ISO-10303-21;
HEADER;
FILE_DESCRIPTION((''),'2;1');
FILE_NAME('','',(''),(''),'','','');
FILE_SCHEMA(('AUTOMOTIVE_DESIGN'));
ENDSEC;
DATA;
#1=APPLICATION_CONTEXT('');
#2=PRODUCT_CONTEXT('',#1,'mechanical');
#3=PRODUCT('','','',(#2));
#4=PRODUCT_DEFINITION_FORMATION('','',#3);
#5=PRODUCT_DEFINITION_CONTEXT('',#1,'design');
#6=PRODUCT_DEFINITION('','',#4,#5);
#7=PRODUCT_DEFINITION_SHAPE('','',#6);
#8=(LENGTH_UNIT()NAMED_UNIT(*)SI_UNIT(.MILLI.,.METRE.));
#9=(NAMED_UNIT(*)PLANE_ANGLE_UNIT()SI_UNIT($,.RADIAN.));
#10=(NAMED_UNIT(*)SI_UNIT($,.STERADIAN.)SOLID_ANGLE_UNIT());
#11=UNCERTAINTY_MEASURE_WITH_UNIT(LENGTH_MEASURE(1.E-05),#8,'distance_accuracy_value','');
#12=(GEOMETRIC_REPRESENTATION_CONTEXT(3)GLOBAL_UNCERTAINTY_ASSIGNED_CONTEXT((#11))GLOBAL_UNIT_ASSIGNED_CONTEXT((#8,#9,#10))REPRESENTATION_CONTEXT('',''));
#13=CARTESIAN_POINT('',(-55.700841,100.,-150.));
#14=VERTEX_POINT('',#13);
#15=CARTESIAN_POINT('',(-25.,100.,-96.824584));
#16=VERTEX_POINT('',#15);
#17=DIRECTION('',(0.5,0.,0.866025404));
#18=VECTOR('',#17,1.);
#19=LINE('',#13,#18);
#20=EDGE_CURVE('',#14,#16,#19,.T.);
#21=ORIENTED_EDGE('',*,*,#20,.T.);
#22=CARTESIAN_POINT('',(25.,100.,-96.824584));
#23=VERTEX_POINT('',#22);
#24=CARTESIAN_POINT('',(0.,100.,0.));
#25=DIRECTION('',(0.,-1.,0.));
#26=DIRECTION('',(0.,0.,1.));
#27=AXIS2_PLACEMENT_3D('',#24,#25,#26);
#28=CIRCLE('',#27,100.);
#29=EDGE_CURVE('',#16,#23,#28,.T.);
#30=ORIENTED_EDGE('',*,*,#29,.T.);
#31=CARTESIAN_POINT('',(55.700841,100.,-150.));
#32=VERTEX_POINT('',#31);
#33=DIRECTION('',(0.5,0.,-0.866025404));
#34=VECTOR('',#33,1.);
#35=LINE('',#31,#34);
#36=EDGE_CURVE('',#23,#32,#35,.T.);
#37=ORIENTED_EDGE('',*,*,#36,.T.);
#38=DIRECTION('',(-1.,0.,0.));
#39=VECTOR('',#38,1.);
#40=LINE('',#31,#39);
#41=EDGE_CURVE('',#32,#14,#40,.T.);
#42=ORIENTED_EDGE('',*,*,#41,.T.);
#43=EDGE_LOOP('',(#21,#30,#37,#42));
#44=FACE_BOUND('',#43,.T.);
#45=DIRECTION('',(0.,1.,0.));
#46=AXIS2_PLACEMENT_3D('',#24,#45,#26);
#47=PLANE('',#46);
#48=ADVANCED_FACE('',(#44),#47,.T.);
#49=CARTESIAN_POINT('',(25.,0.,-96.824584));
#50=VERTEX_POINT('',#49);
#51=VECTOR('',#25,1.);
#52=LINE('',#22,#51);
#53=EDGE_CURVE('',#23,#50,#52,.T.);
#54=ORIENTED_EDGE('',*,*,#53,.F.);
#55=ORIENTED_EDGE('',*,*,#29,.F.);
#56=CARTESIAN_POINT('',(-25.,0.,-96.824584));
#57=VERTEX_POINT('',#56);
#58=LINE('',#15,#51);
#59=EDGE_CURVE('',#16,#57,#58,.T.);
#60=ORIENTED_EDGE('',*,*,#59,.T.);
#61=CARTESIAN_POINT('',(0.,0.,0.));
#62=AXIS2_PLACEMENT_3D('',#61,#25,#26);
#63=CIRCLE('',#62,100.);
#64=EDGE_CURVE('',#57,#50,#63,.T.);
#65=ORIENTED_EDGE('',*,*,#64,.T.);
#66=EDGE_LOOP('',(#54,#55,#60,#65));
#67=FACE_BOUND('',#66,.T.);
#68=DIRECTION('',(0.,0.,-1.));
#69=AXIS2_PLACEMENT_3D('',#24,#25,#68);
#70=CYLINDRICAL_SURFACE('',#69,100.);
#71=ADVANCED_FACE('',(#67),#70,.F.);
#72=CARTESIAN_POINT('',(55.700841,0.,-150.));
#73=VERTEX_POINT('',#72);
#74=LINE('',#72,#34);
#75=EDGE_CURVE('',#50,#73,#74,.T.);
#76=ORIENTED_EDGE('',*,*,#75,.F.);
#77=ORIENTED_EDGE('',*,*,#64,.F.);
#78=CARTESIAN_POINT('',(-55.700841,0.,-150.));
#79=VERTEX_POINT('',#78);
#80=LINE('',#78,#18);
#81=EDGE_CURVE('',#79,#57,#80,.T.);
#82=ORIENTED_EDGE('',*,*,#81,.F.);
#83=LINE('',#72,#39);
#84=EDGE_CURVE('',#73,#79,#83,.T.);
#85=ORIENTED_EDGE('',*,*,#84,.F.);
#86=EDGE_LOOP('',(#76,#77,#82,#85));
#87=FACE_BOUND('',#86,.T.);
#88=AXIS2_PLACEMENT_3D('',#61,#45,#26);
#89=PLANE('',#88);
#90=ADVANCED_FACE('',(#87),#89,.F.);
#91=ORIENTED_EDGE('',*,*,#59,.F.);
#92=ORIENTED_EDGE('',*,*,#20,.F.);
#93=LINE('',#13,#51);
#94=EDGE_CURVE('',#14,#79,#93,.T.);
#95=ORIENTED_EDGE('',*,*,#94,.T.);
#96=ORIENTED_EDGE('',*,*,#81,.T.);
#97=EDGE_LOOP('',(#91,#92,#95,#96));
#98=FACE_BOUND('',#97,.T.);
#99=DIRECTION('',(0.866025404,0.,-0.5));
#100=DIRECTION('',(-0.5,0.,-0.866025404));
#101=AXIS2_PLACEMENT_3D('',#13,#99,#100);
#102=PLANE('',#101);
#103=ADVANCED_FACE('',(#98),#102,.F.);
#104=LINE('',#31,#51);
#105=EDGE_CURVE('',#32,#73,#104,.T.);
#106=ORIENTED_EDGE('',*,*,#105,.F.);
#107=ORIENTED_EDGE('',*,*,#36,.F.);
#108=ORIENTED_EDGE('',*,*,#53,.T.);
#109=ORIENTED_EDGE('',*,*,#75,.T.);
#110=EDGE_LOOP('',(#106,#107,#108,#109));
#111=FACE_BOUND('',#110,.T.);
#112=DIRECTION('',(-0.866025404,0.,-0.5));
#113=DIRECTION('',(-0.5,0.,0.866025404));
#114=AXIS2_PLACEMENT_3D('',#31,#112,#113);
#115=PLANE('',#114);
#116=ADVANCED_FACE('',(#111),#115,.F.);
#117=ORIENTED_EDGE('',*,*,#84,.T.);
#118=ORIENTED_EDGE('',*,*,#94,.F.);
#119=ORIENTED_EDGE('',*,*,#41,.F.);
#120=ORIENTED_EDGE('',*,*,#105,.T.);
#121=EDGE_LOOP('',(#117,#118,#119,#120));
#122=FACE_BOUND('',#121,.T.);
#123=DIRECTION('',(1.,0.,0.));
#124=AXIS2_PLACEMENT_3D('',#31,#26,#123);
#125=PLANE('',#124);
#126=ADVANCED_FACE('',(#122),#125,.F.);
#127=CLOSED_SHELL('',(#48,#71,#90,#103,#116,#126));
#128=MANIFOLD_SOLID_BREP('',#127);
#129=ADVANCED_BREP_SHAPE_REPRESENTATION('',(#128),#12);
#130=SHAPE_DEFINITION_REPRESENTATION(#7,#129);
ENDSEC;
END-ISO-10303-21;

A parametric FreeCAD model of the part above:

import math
import FreeCAD as App
import Part
import Sketcher
from FreeCAD import Vector
Q = App.Units.Quantity

doc = App.newDocument("Part")
body = doc.addObject("PartDesign::Body", "Body")

# Sketch on XZ plane
sketch1 = doc.addObject("Sketcher::SketchObject", "Sketch")
body.addObject(sketch1)
sketch1.AttachmentSupport = (doc.XZ_Plane, [""])
sketch1.MapMode = "FlatFace"
sketch1.addGeometry([
    Part.LineSegment(Vector(25, -96.824584, 0), Vector(55.700841, -150, 0)),
    Part.LineSegment(Vector(55.700841, -150, 0), Vector(-55.700841, -150, 0)),
    Part.LineSegment(Vector(-55.700841, -150, 0), Vector(-25, -96.824584, 0)),
    Part.ArcOfCircle(Part.Circle(Vector(0, 0, 0), Vector(0, 0, 1), 100), math.radians(-104.477512), math.radians(-75.522488)),
], False)
sketch1.addConstraint([
    Sketcher.Constraint("Coincident", 0, 2, 1, 1),
    Sketcher.Constraint("Coincident", 1, 2, 2, 1),
    Sketcher.Constraint("Coincident", 2, 2, 3, 1),
    Sketcher.Constraint("Coincident", 3, 2, 0, 1),
    Sketcher.Constraint("Horizontal", 1),
    Sketcher.Constraint("Coincident", 3, 3, -1, 1),
    Sketcher.Constraint("Horizontal", 2, 2, 3, 2),
    Sketcher.Constraint("Equal", 0, 2),
    Sketcher.Constraint("Radius", 3, 100.0),
    Sketcher.Constraint("Angle", 0, Q("-60 deg")),
    Sketcher.Constraint("DistanceY", 0, 2, -1, 1, 150.0),
    Sketcher.Constraint("DistanceX", 2, 2, -1, 1, 25.0),
])
pad1 = doc.addObject("PartDesign::Pad", "Pad")
body.addObject(pad1)
pad1.Profile = sketch1
pad1.Length = 100
pad1.Reversed = True

doc.recompute()
